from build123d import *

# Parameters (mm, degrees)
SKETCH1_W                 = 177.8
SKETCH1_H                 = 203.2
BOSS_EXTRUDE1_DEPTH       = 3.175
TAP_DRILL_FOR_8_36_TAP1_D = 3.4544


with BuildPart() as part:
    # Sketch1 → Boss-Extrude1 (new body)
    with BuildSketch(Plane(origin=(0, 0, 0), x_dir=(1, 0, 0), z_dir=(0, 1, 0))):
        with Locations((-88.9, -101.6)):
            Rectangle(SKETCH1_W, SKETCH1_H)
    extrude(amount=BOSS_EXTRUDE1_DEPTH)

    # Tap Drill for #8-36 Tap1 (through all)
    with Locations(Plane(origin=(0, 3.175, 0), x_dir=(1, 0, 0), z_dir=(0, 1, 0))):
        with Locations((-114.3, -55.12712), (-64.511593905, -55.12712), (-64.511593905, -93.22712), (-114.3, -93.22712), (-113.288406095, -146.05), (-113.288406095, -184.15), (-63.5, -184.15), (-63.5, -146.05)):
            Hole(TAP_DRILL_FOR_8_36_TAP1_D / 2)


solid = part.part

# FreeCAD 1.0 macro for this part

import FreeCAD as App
import Part
import Sketcher
Q = App.Units.Quantity

doc = App.newDocument("Part")
params = doc.addObject("Spreadsheet::Sheet", "Params")
for row, (alias, value) in enumerate([
    ("sketch1_width", "7 in"),
    ("sketch1_height", "8 in"),
    ("pad1_length", "0.125 in"),
    ("sketch2_diameter", "0.136 in"),
    ("hole_diameter", "0.136 in"),
], start=1):
    params.set(f"A{row}", alias)
    params.set(f"B{row}", "=" + value)
    params.setAlias(f"B{row}", alias)

body = doc.addObject("PartDesign::Body", "Body")

# Sketch on XZ plane
sketch1 = body.newObject("Sketcher::SketchObject", "Sketch")
sketch1.AttachmentSupport = (doc.getObject("XZ_Plane"), [""])
sketch1.MapMode = "FlatFace"
sketch1.addGeometry(Part.LineSegment(App.Vector(-178, 0, 0), App.Vector(-178, 203, 0)), False)
sketch1.addGeometry(Part.LineSegment(App.Vector(-178, 203, 0), App.Vector(0, 203, 0)), False)
sketch1.addGeometry(Part.LineSegment(App.Vector(0, 203, 0), App.Vector(0, 0, 0)), False)
sketch1.addGeometry(Part.LineSegment(App.Vector(0, 0, 0), App.Vector(-178, 0, 0)), False)
sketch1.addConstraint(Sketcher.Constraint("Coincident", 0, 2, 1, 1))
sketch1.addConstraint(Sketcher.Constraint("Coincident", 1, 2, 2, 1))
sketch1.addConstraint(Sketcher.Constraint("Coincident", 2, 2, 3, 1))
sketch1.addConstraint(Sketcher.Constraint("Coincident", 3, 2, 0, 1))
sketch1.addConstraint(Sketcher.Constraint("Vertical", 0))
sketch1.addConstraint(Sketcher.Constraint("Horizontal", 1))
sketch1.addConstraint(Sketcher.Constraint("Vertical", 2))
sketch1.addConstraint(Sketcher.Constraint("Horizontal", 3))
sketch1.addConstraint(Sketcher.Constraint("Coincident", 2, 2, -1, 1))
sketch1.addConstraint(Sketcher.Constraint("DistanceX", 1, 1, 1, 2, Q("7 in")))
sketch1.addConstraint(Sketcher.Constraint("DistanceY", 0, 1, 0, 2, Q("8 in")))
sketch1.setExpression("Constraints[9]", "Params.sketch1_width")
sketch1.setExpression("Constraints[10]", "Params.sketch1_height")
pad1 = body.newObject("PartDesign::Pad", "Pad")
pad1.Profile = sketch1
pad1.setExpression("Length", "Params.pad1_length")
pad1.Reversed = True

# Sketch on XZ plane
sketch2 = body.newObject("Sketcher::SketchObject", "Sketch001")
sketch2.AttachmentSupport = (doc.getObject("XZ_Plane"), [""])
sketch2.MapMode = "FlatFace"
sketch2.AttachmentOffset = App.Placement(App.Vector(0, 0, -0.125 * 25.4), App.Rotation())
sketch2.addGeometry(Part.Circle(App.Vector(-114.3, 55.1, 0), App.Vector(0, 0, 1), 1.7), False)
sketch2.addGeometry(Part.Circle(App.Vector(-64.5, 55.1, 0), App.Vector(0, 0, 1), 1.7), False)
sketch2.addGeometry(Part.Circle(App.Vector(-64.5, 93.2, 0), App.Vector(0, 0, 1), 1.7), False)
sketch2.addGeometry(Part.Circle(App.Vector(-114.3, 93.2, 0), App.Vector(0, 0, 1), 1.7), False)
sketch2.addGeometry(Part.Circle(App.Vector(-113.3, 146.1, 0), App.Vector(0, 0, 1), 1.7), False)
sketch2.addGeometry(Part.Circle(App.Vector(-113.3, 184.2, 0), App.Vector(0, 0, 1), 1.7), False)
sketch2.addGeometry(Part.Circle(App.Vector(-63.5, 184.2, 0), App.Vector(0, 0, 1), 1.7), False)
sketch2.addGeometry(Part.Circle(App.Vector(-63.5, 146.1, 0), App.Vector(0, 0, 1), 1.7), False)
sketch2.addConstraint(Sketcher.Constraint("Equal", 0, 1))
sketch2.addConstraint(Sketcher.Constraint("Equal", 1, 2))
sketch2.addConstraint(Sketcher.Constraint("Equal", 2, 3))
sketch2.addConstraint(Sketcher.Constraint("Equal", 3, 4))
sketch2.addConstraint(Sketcher.Constraint("Equal", 4, 5))
sketch2.addConstraint(Sketcher.Constraint("Equal", 5, 6))
sketch2.addConstraint(Sketcher.Constraint("Equal", 6, 7))
sketch2.addConstraint(Sketcher.Constraint("Horizontal", 0, 3, 1, 3))
sketch2.addConstraint(Sketcher.Constraint("Horizontal", 2, 3, 3, 3))
sketch2.addConstraint(Sketcher.Constraint("Horizontal", 5, 3, 6, 3))
sketch2.addConstraint(Sketcher.Constraint("Horizontal", 4, 3, 7, 3))
sketch2.addConstraint(Sketcher.Constraint("Vertical", 1, 3, 2, 3))
sketch2.addConstraint(Sketcher.Constraint("Vertical", 0, 3, 3, 3))
sketch2.addConstraint(Sketcher.Constraint("Vertical", 4, 3, 5, 3))
sketch2.addConstraint(Sketcher.Constraint("Vertical", 6, 3, 7, 3))
sketch2.addConstraint(Sketcher.Constraint("Diameter", 0, Q("0.136 in")))
sketch2.addConstraint(Sketcher.Constraint("DistanceX", 3, 3, 6, 3, Q("2 in")))
sketch2.addConstraint(Sketcher.Constraint("DistanceX", 0, 3, -1, 1, Q("4.5 in")))
sketch2.addConstraint(Sketcher.Constraint("DistanceY", 1, 3, 2, 3, Q("1.5 in")))
sketch2.addConstraint(Sketcher.Constraint("DistanceY", 4, 3, 5, 3, Q("1.5 in")))
sketch2.addConstraint(Sketcher.Constraint("DistanceY", -1, 1, 4, 3, Q("5.75 in")))
sketch2.addConstraint(Sketcher.Constraint("DistanceY", -1, 1, 0, 3, Q("55.12712 mm")))
sketch2.addConstraint(Sketcher.Constraint("DistanceX", 1, 3, -1, 1, Q("64.511594 mm")))
sketch2.addConstraint(Sketcher.Constraint("DistanceX", 4, 3, -1, 1, Q("113.288406 mm")))
sketch2.setExpression("Constraints[15]", "Params.sketch2_diameter")
doc.recompute()
hole = body.newObject("PartDesign::Hole", "Hole")
hole.Profile = sketch2
hole.ThreadType = "None"
hole.setExpression("Diameter", "Params.hole_diameter")
hole.DepthType = "ThroughAll"
hole.Reversed = True

doc.recompute()
